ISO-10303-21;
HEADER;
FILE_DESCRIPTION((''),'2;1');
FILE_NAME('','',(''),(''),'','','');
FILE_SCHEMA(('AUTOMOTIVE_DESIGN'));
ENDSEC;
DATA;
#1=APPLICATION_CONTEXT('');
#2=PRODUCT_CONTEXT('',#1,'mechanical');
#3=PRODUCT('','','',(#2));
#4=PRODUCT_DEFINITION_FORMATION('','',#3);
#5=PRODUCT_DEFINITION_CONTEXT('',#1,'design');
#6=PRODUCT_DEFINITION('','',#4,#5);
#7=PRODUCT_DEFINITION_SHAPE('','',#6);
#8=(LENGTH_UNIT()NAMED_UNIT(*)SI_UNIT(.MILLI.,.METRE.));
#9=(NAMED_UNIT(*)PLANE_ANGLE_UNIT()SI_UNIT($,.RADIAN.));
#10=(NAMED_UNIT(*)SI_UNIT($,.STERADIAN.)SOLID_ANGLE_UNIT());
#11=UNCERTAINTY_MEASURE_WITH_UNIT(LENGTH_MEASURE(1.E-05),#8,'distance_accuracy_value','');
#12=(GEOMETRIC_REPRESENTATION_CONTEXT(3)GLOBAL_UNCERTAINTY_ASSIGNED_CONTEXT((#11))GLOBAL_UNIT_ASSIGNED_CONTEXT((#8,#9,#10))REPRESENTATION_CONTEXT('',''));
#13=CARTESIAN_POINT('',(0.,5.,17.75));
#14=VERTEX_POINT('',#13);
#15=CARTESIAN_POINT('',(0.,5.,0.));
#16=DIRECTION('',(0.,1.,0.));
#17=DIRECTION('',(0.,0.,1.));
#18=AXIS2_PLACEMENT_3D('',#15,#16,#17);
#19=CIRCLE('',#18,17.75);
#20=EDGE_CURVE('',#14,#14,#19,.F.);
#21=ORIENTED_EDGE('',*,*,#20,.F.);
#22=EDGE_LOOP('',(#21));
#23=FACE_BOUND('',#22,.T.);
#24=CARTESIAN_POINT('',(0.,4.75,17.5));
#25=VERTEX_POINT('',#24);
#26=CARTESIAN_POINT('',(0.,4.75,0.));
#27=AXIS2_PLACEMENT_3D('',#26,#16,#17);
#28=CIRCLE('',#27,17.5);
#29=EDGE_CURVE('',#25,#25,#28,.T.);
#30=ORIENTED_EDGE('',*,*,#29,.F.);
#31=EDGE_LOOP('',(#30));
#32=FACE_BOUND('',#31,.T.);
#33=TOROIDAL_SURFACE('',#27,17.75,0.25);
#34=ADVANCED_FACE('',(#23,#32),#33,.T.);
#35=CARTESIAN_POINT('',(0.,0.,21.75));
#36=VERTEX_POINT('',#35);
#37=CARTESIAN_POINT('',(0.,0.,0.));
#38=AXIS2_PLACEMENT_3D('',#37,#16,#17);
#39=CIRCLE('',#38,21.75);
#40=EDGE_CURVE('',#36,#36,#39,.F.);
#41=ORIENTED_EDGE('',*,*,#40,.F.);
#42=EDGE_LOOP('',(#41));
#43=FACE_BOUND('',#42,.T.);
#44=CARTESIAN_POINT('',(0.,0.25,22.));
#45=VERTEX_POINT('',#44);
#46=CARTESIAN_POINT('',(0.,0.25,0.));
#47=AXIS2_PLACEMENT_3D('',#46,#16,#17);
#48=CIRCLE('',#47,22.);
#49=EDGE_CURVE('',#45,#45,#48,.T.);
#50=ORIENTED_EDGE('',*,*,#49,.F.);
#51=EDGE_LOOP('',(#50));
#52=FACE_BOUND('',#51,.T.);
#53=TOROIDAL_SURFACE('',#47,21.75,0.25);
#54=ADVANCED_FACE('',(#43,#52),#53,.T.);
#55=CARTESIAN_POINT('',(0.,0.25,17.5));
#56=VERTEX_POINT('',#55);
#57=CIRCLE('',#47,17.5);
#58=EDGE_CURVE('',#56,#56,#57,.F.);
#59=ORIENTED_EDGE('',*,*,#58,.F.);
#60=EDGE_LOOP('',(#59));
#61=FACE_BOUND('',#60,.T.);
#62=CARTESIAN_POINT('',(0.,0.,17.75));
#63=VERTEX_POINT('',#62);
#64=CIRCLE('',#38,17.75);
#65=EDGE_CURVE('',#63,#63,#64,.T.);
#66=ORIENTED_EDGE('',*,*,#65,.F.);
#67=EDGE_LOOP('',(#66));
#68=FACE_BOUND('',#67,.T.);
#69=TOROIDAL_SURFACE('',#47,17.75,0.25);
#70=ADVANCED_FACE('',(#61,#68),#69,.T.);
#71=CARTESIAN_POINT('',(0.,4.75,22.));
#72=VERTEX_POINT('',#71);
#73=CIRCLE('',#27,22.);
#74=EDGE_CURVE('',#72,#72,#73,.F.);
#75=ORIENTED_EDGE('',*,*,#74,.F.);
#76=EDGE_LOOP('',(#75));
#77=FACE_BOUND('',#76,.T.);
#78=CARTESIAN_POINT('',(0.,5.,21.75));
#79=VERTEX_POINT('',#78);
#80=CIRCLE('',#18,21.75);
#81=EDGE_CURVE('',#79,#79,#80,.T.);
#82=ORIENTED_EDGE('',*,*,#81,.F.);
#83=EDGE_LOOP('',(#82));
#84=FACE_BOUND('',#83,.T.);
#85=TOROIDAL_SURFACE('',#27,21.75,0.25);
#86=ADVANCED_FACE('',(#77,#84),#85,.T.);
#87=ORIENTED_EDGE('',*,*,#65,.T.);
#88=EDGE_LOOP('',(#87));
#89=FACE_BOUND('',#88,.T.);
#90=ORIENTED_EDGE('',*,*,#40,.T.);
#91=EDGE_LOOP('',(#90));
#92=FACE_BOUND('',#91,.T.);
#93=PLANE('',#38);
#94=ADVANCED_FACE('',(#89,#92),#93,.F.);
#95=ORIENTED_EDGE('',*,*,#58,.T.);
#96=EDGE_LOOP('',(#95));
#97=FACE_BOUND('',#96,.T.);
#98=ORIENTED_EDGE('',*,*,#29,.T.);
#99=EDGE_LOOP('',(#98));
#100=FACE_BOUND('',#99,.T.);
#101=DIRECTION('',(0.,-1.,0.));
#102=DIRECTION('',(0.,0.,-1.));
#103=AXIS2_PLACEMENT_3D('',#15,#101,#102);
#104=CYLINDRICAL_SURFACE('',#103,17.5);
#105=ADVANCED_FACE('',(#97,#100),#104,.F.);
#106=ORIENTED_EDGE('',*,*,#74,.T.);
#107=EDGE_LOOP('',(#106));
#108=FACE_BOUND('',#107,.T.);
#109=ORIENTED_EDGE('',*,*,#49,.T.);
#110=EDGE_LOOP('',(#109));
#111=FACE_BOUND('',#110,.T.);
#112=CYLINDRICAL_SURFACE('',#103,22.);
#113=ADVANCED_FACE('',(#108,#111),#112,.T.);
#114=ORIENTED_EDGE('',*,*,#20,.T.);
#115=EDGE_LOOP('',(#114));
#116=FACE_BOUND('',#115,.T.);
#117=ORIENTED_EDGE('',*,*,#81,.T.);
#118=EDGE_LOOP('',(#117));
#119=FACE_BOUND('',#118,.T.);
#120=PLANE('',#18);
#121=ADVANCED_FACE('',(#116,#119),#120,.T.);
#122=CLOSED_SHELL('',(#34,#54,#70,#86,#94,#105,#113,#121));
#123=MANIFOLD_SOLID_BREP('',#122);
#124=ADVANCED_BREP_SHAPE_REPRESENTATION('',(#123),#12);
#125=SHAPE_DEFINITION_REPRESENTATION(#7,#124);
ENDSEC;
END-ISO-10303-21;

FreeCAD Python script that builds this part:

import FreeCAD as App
import Part
import Sketcher
Q = App.Units.Quantity


def edges_at(feature, points):
    """Names of the edges that pass closest to the given points."""
    edges = feature.Shape.Edges
    near = lambda p: min(range(len(edges)), key=lambda i: edges[i].distToShape(Part.Vertex(*p))[0])
    return sorted({f"Edge{near(p) + 1}" for p in points})

doc = App.newDocument("Part")
params = doc.addObject("Spreadsheet::Sheet", "Params")
for row, (alias, value) in enumerate([
    ("sketch1_diameter", "44 mm"),
    ("sketch1_diameter2", "35 mm"),
    ("pad1_length", "5 mm"),
    ("fillet_radius", "0.25 mm"),
], start=1):
    params.set(f"A{row}", alias)
    params.set(f"B{row}", "=" + value)
    params.setAlias(f"B{row}", alias)

body = doc.addObject("PartDesign::Body", "Body")

sketch1 = doc.addObject("Sketcher::SketchObject", "Sketch")
body.addObject(sketch1)
sketch1.AttachmentSupport = (doc.XZ_Plane, [""])
sketch1.MapMode = "FlatFace"
sketch1.addGeometry([
    Part.Circle(App.Vector(0, 0, 0), App.Vector(0, 0, 1), 22),
    Part.Circle(App.Vector(0, 0, 0), App.Vector(0, 0, 1), 18),
], False)
sketch1.addConstraint([
    Sketcher.Constraint("Coincident", 0, 3, -1, 1),
    Sketcher.Constraint("Coincident", 1, 3, -1, 1),
    Sketcher.Constraint("Diameter", 0, Q("44 mm")),
    Sketcher.Constraint("Diameter", 1, Q("35 mm")),
])
sketch1.setExpression("Constraints[2]", "Params.sketch1_diameter")
sketch1.setExpression("Constraints[3]", "Params.sketch1_diameter2")
pad1 = doc.addObject("PartDesign::Pad", "Pad")
body.addObject(pad1)
pad1.Profile = sketch1
pad1.setExpression("Length", "Params.pad1_length")
pad1.Reversed = True
doc.recompute()

fillet = doc.addObject("PartDesign::Fillet", "Fillet")
body.addObject(fillet)
fillet.Base = (pad1, edges_at(pad1, [
    (0, 0, -22),
    (0, 5, -22),
    (0, 0, -17.5),
    (0, 5, -17.5),
]))
fillet.setExpression("Radius", "Params.fillet_radius")

doc.recompute()
